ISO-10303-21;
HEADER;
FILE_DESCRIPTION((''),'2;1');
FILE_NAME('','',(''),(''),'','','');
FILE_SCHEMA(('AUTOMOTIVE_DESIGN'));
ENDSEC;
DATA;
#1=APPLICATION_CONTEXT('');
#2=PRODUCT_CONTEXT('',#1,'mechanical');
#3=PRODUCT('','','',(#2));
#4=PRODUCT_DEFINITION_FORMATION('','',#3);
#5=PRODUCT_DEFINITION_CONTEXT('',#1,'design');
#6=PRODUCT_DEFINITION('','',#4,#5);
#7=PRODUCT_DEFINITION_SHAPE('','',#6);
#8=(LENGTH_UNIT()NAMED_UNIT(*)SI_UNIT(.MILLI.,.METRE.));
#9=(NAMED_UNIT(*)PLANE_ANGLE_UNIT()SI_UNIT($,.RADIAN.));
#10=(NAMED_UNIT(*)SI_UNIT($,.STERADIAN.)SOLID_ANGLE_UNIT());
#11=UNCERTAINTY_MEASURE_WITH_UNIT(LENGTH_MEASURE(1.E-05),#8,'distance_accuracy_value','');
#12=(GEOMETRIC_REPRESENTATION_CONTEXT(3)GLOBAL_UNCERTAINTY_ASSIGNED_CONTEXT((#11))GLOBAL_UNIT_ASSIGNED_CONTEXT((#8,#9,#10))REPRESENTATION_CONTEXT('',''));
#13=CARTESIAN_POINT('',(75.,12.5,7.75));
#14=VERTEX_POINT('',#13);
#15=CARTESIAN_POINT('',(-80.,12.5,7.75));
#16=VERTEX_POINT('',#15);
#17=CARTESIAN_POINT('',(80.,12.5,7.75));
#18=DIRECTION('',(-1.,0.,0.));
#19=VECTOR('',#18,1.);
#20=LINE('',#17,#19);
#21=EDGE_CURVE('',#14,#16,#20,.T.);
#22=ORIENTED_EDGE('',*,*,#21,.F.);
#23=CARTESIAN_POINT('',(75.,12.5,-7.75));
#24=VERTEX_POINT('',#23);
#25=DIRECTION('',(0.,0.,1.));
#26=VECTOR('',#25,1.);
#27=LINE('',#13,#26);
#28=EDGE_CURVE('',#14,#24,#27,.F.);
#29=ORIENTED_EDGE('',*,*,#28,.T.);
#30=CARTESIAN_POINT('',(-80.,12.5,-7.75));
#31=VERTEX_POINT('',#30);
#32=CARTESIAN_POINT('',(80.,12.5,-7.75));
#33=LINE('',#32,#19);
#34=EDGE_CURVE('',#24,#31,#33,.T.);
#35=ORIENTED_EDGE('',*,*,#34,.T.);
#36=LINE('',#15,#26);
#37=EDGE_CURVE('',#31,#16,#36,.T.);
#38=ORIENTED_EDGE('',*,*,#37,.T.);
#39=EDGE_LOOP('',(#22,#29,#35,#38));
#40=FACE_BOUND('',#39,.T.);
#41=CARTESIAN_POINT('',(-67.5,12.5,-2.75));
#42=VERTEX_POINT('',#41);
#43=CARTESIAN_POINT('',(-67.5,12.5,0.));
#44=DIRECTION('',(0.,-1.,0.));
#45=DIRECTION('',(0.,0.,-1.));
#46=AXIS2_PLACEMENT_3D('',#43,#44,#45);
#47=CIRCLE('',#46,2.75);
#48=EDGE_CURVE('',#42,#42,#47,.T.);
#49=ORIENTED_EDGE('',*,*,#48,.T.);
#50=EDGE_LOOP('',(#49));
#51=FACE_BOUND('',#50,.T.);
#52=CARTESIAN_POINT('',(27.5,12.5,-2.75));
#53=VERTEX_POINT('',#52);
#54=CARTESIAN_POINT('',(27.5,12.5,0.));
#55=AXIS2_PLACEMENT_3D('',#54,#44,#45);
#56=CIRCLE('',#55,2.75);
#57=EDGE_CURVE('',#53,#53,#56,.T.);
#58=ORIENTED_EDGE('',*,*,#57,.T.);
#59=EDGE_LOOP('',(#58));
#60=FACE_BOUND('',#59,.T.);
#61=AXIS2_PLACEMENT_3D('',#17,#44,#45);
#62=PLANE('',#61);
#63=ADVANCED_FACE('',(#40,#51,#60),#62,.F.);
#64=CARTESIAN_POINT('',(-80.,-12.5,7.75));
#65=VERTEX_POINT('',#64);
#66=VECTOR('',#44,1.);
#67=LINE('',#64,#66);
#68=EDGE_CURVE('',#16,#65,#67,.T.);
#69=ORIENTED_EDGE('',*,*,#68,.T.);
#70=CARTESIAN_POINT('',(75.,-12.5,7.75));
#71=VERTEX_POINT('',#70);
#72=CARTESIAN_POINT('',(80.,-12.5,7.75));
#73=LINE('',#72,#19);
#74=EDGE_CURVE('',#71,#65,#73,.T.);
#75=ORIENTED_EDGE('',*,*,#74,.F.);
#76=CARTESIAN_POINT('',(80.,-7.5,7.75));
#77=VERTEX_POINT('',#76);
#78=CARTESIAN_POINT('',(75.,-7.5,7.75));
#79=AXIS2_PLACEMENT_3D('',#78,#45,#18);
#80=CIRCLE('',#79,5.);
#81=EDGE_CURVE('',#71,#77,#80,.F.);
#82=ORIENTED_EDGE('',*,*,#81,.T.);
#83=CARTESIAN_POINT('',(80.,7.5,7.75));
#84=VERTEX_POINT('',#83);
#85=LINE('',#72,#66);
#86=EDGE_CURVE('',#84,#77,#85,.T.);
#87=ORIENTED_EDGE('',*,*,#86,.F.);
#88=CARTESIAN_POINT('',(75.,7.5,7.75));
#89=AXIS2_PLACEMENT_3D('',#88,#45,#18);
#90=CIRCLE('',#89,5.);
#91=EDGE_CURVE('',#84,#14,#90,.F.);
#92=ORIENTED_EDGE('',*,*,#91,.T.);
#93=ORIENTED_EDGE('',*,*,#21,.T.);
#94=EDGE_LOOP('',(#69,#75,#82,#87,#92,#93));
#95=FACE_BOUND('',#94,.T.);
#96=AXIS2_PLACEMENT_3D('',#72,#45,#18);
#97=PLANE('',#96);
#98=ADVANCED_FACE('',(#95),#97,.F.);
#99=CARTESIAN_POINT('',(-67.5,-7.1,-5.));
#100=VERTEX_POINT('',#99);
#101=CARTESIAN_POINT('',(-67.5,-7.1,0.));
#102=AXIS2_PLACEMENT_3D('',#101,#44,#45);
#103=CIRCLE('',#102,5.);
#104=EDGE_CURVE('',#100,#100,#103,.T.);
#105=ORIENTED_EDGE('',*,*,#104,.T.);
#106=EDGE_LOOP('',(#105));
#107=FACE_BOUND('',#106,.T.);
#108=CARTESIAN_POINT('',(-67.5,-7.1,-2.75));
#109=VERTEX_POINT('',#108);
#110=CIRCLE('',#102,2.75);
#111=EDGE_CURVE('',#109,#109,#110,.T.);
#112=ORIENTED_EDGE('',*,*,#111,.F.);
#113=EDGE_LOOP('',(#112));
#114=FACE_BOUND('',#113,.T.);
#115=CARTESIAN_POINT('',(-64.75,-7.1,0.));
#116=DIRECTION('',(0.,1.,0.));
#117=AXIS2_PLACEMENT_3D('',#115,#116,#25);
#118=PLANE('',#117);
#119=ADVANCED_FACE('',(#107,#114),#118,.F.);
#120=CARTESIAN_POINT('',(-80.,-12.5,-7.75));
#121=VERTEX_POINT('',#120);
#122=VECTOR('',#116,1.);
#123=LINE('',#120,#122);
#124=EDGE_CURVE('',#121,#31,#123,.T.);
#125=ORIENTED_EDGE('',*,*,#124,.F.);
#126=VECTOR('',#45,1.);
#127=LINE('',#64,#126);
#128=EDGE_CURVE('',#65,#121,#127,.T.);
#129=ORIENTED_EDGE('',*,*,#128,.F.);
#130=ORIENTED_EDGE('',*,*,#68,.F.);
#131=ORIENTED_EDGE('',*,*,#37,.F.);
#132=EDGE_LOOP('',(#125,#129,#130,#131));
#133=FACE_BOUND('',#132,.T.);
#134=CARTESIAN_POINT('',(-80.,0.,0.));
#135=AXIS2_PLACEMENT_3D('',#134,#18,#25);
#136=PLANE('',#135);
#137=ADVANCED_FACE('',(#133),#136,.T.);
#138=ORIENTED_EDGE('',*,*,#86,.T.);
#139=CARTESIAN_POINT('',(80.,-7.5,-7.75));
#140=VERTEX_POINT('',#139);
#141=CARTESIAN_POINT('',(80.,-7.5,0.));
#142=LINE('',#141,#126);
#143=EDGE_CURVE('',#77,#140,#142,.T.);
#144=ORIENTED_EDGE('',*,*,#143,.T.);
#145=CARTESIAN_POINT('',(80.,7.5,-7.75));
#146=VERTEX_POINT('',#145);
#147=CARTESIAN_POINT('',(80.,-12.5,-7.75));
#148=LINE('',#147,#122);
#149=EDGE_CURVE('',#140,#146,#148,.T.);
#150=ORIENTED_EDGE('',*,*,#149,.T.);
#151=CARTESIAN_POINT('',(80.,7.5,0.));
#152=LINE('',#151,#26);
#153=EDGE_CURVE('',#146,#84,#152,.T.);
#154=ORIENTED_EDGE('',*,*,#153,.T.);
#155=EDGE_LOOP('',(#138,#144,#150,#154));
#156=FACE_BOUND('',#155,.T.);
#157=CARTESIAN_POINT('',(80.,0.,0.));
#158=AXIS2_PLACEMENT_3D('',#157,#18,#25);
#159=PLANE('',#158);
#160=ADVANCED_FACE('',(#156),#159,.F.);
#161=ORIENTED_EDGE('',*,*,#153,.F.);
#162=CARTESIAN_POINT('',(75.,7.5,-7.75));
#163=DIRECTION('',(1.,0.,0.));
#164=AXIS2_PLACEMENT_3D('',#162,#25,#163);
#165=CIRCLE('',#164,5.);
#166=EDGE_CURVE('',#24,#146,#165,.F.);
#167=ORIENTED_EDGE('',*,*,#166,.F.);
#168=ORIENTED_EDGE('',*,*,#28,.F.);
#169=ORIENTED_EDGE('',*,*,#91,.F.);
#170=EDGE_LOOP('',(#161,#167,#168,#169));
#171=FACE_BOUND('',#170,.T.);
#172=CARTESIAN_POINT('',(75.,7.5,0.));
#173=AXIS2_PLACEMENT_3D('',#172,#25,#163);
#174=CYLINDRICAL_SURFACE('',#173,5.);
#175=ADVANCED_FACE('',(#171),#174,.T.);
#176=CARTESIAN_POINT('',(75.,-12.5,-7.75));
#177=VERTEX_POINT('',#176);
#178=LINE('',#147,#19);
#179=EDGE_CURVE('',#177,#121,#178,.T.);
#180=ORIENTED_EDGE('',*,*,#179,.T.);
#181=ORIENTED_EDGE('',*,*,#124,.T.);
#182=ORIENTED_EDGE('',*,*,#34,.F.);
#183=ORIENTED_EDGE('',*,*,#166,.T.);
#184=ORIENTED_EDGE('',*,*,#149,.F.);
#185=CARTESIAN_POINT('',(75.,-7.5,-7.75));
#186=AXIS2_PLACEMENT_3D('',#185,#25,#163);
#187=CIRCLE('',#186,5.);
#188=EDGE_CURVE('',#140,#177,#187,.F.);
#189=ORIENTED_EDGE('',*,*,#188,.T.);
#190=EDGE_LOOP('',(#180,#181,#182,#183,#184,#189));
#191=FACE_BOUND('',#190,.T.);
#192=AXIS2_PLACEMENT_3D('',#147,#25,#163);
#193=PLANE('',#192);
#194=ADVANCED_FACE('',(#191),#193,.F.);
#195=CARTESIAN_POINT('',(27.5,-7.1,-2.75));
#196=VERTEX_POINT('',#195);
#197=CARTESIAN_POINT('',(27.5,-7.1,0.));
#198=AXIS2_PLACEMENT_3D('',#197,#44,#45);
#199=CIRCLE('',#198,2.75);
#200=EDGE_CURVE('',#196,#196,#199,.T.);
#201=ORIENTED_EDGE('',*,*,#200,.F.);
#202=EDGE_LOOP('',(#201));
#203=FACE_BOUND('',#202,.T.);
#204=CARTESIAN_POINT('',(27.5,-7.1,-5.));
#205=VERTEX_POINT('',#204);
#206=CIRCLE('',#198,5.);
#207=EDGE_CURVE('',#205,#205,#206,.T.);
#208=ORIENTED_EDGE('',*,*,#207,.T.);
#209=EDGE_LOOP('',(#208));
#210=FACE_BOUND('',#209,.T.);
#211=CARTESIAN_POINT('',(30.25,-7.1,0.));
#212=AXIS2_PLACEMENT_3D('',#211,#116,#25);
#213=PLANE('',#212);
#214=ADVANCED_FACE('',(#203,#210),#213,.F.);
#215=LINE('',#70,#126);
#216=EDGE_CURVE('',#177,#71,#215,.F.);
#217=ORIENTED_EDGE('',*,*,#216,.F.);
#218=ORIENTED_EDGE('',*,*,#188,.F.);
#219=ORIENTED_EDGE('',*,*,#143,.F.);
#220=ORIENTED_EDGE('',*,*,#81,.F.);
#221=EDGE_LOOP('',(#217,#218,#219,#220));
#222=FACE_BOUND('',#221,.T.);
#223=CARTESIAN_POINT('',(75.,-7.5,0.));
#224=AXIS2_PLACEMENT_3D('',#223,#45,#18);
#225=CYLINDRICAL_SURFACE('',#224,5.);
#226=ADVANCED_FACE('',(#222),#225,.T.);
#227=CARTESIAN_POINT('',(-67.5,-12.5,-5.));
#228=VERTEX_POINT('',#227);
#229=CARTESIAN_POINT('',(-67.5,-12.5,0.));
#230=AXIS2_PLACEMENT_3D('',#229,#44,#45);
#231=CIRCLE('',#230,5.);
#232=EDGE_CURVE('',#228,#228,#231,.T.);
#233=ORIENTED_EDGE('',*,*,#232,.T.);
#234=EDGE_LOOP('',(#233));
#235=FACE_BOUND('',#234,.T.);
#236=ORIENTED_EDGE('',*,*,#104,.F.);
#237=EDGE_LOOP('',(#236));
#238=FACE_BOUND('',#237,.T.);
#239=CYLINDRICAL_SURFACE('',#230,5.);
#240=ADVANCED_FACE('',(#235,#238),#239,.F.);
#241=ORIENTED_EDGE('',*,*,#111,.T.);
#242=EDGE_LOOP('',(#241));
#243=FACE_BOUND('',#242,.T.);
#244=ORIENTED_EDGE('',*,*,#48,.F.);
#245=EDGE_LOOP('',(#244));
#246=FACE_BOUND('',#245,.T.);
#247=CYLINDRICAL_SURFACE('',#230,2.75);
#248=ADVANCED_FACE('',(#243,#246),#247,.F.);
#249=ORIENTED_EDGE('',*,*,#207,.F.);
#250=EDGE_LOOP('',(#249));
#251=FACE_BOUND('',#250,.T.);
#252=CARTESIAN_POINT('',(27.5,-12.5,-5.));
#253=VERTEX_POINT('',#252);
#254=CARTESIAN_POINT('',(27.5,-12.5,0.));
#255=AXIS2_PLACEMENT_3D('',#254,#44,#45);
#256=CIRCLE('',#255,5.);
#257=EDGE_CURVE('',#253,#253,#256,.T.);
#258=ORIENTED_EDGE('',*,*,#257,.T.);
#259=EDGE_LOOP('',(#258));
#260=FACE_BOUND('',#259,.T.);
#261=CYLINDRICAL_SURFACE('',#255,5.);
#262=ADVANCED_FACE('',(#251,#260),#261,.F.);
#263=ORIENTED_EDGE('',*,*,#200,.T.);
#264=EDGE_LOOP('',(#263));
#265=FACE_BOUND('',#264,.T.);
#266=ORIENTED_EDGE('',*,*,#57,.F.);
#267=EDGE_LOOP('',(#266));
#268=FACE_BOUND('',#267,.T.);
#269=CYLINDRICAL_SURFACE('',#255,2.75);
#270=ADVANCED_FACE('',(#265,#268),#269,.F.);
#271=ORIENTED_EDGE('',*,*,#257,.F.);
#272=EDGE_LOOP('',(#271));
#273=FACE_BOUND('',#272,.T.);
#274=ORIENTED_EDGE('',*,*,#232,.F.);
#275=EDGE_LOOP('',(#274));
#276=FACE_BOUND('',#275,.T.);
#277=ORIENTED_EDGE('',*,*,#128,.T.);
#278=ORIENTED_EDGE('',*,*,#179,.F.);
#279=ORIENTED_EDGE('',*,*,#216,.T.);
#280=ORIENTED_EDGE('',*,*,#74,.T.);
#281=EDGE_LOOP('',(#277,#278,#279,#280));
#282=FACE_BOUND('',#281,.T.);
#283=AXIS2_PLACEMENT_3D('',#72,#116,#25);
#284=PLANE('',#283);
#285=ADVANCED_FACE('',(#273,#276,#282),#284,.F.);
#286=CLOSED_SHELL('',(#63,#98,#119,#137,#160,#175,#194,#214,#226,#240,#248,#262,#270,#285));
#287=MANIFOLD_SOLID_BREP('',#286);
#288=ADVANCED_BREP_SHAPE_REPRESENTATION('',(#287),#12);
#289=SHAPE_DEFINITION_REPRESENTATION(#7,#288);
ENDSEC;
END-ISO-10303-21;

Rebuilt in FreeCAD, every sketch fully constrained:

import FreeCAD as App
import Part
import Sketcher


def edges_at(feature, points):
    """Names of the edges that pass closest to the given points."""
    edges = feature.Shape.Edges
    near = lambda p: min(range(len(edges)), key=lambda i: edges[i].distToShape(Part.Vertex(*p))[0])
    return sorted({f"Edge{near(p) + 1}" for p in points})

doc = App.newDocument("Part")
params = doc.addObject("Spreadsheet::Sheet", "Params")
for row, (alias, value) in enumerate([
    ("sketch1_width", "25 mm"),
    ("sketch1_height", "15.5 mm"),
    ("pad1_length", "160 mm"),
    ("sketch2_diameter", "5.5 mm"),
    ("hole_diameter", "5.5 mm"),
    ("hole_cbore_diameter", "10 mm"),
    ("hole_cbore_depth", "5.4 mm"),
    ("fillet_radius", "5 mm"),
    ("fillet2_radius", "5 mm"),
], start=1):
    params.set(f"A{row}", alias)
    params.set(f"B{row}", "=" + value)
    params.setAlias(f"B{row}", alias)

body = doc.addObject("PartDesign::Body", "Body")

sketch1 = body.newObject("Sketcher::SketchObject", "Sketch")
sketch1.AttachmentSupport = (doc.getObject("YZ_Plane"), [""])
sketch1.MapMode = "FlatFace"
sketch1.addGeometry([
    Part.LineSegment(App.Vector(12, 8, 0), App.Vector(-12, 8, 0)),
    Part.LineSegment(App.Vector(-12, 8, 0), App.Vector(-12, -8, 0)),
    Part.LineSegment(App.Vector(-12, -8, 0), App.Vector(12, -8, 0)),
    Part.LineSegment(App.Vector(12, -8, 0), App.Vector(12, 8, 0)),
], False)
sketch1.addConstraint([
    Sketcher.Constraint("Coincident", 0, 2, 1, 1),
    Sketcher.Constraint("Coincident", 1, 2, 2, 1),
    Sketcher.Constraint("Coincident", 2, 2, 3, 1),
    Sketcher.Constraint("Coincident", 3, 2, 0, 1),
    Sketcher.Constraint("Horizontal", 0),
    Sketcher.Constraint("Vertical", 1),
    Sketcher.Constraint("Horizontal", 2),
    Sketcher.Constraint("Vertical", 3),
    Sketcher.Constraint("Symmetric", 0, 2, 2, 2, -1, 1),
    Sketcher.Constraint("DistanceX", 0, 2, 0, 1, 25.0),
    Sketcher.Constraint("DistanceY", 1, 2, 1, 1, 15.5),
])
sketch1.setExpression("Constraints[9]", "Params.sketch1_width")
sketch1.setExpression("Constraints[10]", "Params.sketch1_height")
pad1 = body.newObject("PartDesign::Pad", "Pad")
pad1.Profile = sketch1
pad1.setExpression("Length", "Params.pad1_length")
pad1.Midplane = True

sketch2 = body.newObject("Sketcher::SketchObject", "Sketch001")
sketch2.AttachmentSupport = (doc.getObject("XZ_Plane"), [""])
sketch2.MapMode = "FlatFace"
sketch2.AttachmentOffset = App.Placement(App.Vector(0, 0, 12.5), App.Rotation())
sketch2.addGeometry([
    Part.Circle(App.Vector(27.5, 0, 0), App.Vector(0, 0, 1), 2.8),
    Part.Circle(App.Vector(-67.5, 0, 0), App.Vector(0, 0, 1), 2.8),
], False)
sketch2.addConstraint([
    Sketcher.Constraint("Equal", 0, 1),
    Sketcher.Constraint("PointOnObject", 0, 3, -1),
    Sketcher.Constraint("PointOnObject", 1, 3, -1),
    Sketcher.Constraint("Diameter", 0, 5.5),
    Sketcher.Constraint("DistanceX", 1, 3, 0, 3, 95.0),
    Sketcher.Constraint("DistanceX", -1, 1, 0, 3, 27.5),
])
sketch2.setExpression("Constraints[3]", "Params.sketch2_diameter")
doc.recompute()
hole = body.newObject("PartDesign::Hole", "Hole")
hole.Profile = sketch2
hole.ThreadType = "None"
hole.setExpression("Diameter", "Params.hole_diameter")
hole.DepthType = "ThroughAll"
hole.HoleCutType = "Counterbore"
hole.setExpression("HoleCutDiameter", "Params.hole_cbore_diameter")
hole.setExpression("HoleCutDepth", "Params.hole_cbore_depth")
doc.recompute()

fillet = body.newObject("PartDesign::Fillet", "Fillet")
fillet.Base = (hole, edges_at(hole, [(80, -12.5, 0)]))
fillet.setExpression("Radius", "Params.fillet_radius")
doc.recompute()

fillet2 = body.newObject("PartDesign::Fillet", "Fillet001")
fillet2.Base = (fillet, edges_at(fillet, [(80, 12.5, 0)]))
fillet2.setExpression("Radius", "Params.fillet2_radius")

doc.recompute()
